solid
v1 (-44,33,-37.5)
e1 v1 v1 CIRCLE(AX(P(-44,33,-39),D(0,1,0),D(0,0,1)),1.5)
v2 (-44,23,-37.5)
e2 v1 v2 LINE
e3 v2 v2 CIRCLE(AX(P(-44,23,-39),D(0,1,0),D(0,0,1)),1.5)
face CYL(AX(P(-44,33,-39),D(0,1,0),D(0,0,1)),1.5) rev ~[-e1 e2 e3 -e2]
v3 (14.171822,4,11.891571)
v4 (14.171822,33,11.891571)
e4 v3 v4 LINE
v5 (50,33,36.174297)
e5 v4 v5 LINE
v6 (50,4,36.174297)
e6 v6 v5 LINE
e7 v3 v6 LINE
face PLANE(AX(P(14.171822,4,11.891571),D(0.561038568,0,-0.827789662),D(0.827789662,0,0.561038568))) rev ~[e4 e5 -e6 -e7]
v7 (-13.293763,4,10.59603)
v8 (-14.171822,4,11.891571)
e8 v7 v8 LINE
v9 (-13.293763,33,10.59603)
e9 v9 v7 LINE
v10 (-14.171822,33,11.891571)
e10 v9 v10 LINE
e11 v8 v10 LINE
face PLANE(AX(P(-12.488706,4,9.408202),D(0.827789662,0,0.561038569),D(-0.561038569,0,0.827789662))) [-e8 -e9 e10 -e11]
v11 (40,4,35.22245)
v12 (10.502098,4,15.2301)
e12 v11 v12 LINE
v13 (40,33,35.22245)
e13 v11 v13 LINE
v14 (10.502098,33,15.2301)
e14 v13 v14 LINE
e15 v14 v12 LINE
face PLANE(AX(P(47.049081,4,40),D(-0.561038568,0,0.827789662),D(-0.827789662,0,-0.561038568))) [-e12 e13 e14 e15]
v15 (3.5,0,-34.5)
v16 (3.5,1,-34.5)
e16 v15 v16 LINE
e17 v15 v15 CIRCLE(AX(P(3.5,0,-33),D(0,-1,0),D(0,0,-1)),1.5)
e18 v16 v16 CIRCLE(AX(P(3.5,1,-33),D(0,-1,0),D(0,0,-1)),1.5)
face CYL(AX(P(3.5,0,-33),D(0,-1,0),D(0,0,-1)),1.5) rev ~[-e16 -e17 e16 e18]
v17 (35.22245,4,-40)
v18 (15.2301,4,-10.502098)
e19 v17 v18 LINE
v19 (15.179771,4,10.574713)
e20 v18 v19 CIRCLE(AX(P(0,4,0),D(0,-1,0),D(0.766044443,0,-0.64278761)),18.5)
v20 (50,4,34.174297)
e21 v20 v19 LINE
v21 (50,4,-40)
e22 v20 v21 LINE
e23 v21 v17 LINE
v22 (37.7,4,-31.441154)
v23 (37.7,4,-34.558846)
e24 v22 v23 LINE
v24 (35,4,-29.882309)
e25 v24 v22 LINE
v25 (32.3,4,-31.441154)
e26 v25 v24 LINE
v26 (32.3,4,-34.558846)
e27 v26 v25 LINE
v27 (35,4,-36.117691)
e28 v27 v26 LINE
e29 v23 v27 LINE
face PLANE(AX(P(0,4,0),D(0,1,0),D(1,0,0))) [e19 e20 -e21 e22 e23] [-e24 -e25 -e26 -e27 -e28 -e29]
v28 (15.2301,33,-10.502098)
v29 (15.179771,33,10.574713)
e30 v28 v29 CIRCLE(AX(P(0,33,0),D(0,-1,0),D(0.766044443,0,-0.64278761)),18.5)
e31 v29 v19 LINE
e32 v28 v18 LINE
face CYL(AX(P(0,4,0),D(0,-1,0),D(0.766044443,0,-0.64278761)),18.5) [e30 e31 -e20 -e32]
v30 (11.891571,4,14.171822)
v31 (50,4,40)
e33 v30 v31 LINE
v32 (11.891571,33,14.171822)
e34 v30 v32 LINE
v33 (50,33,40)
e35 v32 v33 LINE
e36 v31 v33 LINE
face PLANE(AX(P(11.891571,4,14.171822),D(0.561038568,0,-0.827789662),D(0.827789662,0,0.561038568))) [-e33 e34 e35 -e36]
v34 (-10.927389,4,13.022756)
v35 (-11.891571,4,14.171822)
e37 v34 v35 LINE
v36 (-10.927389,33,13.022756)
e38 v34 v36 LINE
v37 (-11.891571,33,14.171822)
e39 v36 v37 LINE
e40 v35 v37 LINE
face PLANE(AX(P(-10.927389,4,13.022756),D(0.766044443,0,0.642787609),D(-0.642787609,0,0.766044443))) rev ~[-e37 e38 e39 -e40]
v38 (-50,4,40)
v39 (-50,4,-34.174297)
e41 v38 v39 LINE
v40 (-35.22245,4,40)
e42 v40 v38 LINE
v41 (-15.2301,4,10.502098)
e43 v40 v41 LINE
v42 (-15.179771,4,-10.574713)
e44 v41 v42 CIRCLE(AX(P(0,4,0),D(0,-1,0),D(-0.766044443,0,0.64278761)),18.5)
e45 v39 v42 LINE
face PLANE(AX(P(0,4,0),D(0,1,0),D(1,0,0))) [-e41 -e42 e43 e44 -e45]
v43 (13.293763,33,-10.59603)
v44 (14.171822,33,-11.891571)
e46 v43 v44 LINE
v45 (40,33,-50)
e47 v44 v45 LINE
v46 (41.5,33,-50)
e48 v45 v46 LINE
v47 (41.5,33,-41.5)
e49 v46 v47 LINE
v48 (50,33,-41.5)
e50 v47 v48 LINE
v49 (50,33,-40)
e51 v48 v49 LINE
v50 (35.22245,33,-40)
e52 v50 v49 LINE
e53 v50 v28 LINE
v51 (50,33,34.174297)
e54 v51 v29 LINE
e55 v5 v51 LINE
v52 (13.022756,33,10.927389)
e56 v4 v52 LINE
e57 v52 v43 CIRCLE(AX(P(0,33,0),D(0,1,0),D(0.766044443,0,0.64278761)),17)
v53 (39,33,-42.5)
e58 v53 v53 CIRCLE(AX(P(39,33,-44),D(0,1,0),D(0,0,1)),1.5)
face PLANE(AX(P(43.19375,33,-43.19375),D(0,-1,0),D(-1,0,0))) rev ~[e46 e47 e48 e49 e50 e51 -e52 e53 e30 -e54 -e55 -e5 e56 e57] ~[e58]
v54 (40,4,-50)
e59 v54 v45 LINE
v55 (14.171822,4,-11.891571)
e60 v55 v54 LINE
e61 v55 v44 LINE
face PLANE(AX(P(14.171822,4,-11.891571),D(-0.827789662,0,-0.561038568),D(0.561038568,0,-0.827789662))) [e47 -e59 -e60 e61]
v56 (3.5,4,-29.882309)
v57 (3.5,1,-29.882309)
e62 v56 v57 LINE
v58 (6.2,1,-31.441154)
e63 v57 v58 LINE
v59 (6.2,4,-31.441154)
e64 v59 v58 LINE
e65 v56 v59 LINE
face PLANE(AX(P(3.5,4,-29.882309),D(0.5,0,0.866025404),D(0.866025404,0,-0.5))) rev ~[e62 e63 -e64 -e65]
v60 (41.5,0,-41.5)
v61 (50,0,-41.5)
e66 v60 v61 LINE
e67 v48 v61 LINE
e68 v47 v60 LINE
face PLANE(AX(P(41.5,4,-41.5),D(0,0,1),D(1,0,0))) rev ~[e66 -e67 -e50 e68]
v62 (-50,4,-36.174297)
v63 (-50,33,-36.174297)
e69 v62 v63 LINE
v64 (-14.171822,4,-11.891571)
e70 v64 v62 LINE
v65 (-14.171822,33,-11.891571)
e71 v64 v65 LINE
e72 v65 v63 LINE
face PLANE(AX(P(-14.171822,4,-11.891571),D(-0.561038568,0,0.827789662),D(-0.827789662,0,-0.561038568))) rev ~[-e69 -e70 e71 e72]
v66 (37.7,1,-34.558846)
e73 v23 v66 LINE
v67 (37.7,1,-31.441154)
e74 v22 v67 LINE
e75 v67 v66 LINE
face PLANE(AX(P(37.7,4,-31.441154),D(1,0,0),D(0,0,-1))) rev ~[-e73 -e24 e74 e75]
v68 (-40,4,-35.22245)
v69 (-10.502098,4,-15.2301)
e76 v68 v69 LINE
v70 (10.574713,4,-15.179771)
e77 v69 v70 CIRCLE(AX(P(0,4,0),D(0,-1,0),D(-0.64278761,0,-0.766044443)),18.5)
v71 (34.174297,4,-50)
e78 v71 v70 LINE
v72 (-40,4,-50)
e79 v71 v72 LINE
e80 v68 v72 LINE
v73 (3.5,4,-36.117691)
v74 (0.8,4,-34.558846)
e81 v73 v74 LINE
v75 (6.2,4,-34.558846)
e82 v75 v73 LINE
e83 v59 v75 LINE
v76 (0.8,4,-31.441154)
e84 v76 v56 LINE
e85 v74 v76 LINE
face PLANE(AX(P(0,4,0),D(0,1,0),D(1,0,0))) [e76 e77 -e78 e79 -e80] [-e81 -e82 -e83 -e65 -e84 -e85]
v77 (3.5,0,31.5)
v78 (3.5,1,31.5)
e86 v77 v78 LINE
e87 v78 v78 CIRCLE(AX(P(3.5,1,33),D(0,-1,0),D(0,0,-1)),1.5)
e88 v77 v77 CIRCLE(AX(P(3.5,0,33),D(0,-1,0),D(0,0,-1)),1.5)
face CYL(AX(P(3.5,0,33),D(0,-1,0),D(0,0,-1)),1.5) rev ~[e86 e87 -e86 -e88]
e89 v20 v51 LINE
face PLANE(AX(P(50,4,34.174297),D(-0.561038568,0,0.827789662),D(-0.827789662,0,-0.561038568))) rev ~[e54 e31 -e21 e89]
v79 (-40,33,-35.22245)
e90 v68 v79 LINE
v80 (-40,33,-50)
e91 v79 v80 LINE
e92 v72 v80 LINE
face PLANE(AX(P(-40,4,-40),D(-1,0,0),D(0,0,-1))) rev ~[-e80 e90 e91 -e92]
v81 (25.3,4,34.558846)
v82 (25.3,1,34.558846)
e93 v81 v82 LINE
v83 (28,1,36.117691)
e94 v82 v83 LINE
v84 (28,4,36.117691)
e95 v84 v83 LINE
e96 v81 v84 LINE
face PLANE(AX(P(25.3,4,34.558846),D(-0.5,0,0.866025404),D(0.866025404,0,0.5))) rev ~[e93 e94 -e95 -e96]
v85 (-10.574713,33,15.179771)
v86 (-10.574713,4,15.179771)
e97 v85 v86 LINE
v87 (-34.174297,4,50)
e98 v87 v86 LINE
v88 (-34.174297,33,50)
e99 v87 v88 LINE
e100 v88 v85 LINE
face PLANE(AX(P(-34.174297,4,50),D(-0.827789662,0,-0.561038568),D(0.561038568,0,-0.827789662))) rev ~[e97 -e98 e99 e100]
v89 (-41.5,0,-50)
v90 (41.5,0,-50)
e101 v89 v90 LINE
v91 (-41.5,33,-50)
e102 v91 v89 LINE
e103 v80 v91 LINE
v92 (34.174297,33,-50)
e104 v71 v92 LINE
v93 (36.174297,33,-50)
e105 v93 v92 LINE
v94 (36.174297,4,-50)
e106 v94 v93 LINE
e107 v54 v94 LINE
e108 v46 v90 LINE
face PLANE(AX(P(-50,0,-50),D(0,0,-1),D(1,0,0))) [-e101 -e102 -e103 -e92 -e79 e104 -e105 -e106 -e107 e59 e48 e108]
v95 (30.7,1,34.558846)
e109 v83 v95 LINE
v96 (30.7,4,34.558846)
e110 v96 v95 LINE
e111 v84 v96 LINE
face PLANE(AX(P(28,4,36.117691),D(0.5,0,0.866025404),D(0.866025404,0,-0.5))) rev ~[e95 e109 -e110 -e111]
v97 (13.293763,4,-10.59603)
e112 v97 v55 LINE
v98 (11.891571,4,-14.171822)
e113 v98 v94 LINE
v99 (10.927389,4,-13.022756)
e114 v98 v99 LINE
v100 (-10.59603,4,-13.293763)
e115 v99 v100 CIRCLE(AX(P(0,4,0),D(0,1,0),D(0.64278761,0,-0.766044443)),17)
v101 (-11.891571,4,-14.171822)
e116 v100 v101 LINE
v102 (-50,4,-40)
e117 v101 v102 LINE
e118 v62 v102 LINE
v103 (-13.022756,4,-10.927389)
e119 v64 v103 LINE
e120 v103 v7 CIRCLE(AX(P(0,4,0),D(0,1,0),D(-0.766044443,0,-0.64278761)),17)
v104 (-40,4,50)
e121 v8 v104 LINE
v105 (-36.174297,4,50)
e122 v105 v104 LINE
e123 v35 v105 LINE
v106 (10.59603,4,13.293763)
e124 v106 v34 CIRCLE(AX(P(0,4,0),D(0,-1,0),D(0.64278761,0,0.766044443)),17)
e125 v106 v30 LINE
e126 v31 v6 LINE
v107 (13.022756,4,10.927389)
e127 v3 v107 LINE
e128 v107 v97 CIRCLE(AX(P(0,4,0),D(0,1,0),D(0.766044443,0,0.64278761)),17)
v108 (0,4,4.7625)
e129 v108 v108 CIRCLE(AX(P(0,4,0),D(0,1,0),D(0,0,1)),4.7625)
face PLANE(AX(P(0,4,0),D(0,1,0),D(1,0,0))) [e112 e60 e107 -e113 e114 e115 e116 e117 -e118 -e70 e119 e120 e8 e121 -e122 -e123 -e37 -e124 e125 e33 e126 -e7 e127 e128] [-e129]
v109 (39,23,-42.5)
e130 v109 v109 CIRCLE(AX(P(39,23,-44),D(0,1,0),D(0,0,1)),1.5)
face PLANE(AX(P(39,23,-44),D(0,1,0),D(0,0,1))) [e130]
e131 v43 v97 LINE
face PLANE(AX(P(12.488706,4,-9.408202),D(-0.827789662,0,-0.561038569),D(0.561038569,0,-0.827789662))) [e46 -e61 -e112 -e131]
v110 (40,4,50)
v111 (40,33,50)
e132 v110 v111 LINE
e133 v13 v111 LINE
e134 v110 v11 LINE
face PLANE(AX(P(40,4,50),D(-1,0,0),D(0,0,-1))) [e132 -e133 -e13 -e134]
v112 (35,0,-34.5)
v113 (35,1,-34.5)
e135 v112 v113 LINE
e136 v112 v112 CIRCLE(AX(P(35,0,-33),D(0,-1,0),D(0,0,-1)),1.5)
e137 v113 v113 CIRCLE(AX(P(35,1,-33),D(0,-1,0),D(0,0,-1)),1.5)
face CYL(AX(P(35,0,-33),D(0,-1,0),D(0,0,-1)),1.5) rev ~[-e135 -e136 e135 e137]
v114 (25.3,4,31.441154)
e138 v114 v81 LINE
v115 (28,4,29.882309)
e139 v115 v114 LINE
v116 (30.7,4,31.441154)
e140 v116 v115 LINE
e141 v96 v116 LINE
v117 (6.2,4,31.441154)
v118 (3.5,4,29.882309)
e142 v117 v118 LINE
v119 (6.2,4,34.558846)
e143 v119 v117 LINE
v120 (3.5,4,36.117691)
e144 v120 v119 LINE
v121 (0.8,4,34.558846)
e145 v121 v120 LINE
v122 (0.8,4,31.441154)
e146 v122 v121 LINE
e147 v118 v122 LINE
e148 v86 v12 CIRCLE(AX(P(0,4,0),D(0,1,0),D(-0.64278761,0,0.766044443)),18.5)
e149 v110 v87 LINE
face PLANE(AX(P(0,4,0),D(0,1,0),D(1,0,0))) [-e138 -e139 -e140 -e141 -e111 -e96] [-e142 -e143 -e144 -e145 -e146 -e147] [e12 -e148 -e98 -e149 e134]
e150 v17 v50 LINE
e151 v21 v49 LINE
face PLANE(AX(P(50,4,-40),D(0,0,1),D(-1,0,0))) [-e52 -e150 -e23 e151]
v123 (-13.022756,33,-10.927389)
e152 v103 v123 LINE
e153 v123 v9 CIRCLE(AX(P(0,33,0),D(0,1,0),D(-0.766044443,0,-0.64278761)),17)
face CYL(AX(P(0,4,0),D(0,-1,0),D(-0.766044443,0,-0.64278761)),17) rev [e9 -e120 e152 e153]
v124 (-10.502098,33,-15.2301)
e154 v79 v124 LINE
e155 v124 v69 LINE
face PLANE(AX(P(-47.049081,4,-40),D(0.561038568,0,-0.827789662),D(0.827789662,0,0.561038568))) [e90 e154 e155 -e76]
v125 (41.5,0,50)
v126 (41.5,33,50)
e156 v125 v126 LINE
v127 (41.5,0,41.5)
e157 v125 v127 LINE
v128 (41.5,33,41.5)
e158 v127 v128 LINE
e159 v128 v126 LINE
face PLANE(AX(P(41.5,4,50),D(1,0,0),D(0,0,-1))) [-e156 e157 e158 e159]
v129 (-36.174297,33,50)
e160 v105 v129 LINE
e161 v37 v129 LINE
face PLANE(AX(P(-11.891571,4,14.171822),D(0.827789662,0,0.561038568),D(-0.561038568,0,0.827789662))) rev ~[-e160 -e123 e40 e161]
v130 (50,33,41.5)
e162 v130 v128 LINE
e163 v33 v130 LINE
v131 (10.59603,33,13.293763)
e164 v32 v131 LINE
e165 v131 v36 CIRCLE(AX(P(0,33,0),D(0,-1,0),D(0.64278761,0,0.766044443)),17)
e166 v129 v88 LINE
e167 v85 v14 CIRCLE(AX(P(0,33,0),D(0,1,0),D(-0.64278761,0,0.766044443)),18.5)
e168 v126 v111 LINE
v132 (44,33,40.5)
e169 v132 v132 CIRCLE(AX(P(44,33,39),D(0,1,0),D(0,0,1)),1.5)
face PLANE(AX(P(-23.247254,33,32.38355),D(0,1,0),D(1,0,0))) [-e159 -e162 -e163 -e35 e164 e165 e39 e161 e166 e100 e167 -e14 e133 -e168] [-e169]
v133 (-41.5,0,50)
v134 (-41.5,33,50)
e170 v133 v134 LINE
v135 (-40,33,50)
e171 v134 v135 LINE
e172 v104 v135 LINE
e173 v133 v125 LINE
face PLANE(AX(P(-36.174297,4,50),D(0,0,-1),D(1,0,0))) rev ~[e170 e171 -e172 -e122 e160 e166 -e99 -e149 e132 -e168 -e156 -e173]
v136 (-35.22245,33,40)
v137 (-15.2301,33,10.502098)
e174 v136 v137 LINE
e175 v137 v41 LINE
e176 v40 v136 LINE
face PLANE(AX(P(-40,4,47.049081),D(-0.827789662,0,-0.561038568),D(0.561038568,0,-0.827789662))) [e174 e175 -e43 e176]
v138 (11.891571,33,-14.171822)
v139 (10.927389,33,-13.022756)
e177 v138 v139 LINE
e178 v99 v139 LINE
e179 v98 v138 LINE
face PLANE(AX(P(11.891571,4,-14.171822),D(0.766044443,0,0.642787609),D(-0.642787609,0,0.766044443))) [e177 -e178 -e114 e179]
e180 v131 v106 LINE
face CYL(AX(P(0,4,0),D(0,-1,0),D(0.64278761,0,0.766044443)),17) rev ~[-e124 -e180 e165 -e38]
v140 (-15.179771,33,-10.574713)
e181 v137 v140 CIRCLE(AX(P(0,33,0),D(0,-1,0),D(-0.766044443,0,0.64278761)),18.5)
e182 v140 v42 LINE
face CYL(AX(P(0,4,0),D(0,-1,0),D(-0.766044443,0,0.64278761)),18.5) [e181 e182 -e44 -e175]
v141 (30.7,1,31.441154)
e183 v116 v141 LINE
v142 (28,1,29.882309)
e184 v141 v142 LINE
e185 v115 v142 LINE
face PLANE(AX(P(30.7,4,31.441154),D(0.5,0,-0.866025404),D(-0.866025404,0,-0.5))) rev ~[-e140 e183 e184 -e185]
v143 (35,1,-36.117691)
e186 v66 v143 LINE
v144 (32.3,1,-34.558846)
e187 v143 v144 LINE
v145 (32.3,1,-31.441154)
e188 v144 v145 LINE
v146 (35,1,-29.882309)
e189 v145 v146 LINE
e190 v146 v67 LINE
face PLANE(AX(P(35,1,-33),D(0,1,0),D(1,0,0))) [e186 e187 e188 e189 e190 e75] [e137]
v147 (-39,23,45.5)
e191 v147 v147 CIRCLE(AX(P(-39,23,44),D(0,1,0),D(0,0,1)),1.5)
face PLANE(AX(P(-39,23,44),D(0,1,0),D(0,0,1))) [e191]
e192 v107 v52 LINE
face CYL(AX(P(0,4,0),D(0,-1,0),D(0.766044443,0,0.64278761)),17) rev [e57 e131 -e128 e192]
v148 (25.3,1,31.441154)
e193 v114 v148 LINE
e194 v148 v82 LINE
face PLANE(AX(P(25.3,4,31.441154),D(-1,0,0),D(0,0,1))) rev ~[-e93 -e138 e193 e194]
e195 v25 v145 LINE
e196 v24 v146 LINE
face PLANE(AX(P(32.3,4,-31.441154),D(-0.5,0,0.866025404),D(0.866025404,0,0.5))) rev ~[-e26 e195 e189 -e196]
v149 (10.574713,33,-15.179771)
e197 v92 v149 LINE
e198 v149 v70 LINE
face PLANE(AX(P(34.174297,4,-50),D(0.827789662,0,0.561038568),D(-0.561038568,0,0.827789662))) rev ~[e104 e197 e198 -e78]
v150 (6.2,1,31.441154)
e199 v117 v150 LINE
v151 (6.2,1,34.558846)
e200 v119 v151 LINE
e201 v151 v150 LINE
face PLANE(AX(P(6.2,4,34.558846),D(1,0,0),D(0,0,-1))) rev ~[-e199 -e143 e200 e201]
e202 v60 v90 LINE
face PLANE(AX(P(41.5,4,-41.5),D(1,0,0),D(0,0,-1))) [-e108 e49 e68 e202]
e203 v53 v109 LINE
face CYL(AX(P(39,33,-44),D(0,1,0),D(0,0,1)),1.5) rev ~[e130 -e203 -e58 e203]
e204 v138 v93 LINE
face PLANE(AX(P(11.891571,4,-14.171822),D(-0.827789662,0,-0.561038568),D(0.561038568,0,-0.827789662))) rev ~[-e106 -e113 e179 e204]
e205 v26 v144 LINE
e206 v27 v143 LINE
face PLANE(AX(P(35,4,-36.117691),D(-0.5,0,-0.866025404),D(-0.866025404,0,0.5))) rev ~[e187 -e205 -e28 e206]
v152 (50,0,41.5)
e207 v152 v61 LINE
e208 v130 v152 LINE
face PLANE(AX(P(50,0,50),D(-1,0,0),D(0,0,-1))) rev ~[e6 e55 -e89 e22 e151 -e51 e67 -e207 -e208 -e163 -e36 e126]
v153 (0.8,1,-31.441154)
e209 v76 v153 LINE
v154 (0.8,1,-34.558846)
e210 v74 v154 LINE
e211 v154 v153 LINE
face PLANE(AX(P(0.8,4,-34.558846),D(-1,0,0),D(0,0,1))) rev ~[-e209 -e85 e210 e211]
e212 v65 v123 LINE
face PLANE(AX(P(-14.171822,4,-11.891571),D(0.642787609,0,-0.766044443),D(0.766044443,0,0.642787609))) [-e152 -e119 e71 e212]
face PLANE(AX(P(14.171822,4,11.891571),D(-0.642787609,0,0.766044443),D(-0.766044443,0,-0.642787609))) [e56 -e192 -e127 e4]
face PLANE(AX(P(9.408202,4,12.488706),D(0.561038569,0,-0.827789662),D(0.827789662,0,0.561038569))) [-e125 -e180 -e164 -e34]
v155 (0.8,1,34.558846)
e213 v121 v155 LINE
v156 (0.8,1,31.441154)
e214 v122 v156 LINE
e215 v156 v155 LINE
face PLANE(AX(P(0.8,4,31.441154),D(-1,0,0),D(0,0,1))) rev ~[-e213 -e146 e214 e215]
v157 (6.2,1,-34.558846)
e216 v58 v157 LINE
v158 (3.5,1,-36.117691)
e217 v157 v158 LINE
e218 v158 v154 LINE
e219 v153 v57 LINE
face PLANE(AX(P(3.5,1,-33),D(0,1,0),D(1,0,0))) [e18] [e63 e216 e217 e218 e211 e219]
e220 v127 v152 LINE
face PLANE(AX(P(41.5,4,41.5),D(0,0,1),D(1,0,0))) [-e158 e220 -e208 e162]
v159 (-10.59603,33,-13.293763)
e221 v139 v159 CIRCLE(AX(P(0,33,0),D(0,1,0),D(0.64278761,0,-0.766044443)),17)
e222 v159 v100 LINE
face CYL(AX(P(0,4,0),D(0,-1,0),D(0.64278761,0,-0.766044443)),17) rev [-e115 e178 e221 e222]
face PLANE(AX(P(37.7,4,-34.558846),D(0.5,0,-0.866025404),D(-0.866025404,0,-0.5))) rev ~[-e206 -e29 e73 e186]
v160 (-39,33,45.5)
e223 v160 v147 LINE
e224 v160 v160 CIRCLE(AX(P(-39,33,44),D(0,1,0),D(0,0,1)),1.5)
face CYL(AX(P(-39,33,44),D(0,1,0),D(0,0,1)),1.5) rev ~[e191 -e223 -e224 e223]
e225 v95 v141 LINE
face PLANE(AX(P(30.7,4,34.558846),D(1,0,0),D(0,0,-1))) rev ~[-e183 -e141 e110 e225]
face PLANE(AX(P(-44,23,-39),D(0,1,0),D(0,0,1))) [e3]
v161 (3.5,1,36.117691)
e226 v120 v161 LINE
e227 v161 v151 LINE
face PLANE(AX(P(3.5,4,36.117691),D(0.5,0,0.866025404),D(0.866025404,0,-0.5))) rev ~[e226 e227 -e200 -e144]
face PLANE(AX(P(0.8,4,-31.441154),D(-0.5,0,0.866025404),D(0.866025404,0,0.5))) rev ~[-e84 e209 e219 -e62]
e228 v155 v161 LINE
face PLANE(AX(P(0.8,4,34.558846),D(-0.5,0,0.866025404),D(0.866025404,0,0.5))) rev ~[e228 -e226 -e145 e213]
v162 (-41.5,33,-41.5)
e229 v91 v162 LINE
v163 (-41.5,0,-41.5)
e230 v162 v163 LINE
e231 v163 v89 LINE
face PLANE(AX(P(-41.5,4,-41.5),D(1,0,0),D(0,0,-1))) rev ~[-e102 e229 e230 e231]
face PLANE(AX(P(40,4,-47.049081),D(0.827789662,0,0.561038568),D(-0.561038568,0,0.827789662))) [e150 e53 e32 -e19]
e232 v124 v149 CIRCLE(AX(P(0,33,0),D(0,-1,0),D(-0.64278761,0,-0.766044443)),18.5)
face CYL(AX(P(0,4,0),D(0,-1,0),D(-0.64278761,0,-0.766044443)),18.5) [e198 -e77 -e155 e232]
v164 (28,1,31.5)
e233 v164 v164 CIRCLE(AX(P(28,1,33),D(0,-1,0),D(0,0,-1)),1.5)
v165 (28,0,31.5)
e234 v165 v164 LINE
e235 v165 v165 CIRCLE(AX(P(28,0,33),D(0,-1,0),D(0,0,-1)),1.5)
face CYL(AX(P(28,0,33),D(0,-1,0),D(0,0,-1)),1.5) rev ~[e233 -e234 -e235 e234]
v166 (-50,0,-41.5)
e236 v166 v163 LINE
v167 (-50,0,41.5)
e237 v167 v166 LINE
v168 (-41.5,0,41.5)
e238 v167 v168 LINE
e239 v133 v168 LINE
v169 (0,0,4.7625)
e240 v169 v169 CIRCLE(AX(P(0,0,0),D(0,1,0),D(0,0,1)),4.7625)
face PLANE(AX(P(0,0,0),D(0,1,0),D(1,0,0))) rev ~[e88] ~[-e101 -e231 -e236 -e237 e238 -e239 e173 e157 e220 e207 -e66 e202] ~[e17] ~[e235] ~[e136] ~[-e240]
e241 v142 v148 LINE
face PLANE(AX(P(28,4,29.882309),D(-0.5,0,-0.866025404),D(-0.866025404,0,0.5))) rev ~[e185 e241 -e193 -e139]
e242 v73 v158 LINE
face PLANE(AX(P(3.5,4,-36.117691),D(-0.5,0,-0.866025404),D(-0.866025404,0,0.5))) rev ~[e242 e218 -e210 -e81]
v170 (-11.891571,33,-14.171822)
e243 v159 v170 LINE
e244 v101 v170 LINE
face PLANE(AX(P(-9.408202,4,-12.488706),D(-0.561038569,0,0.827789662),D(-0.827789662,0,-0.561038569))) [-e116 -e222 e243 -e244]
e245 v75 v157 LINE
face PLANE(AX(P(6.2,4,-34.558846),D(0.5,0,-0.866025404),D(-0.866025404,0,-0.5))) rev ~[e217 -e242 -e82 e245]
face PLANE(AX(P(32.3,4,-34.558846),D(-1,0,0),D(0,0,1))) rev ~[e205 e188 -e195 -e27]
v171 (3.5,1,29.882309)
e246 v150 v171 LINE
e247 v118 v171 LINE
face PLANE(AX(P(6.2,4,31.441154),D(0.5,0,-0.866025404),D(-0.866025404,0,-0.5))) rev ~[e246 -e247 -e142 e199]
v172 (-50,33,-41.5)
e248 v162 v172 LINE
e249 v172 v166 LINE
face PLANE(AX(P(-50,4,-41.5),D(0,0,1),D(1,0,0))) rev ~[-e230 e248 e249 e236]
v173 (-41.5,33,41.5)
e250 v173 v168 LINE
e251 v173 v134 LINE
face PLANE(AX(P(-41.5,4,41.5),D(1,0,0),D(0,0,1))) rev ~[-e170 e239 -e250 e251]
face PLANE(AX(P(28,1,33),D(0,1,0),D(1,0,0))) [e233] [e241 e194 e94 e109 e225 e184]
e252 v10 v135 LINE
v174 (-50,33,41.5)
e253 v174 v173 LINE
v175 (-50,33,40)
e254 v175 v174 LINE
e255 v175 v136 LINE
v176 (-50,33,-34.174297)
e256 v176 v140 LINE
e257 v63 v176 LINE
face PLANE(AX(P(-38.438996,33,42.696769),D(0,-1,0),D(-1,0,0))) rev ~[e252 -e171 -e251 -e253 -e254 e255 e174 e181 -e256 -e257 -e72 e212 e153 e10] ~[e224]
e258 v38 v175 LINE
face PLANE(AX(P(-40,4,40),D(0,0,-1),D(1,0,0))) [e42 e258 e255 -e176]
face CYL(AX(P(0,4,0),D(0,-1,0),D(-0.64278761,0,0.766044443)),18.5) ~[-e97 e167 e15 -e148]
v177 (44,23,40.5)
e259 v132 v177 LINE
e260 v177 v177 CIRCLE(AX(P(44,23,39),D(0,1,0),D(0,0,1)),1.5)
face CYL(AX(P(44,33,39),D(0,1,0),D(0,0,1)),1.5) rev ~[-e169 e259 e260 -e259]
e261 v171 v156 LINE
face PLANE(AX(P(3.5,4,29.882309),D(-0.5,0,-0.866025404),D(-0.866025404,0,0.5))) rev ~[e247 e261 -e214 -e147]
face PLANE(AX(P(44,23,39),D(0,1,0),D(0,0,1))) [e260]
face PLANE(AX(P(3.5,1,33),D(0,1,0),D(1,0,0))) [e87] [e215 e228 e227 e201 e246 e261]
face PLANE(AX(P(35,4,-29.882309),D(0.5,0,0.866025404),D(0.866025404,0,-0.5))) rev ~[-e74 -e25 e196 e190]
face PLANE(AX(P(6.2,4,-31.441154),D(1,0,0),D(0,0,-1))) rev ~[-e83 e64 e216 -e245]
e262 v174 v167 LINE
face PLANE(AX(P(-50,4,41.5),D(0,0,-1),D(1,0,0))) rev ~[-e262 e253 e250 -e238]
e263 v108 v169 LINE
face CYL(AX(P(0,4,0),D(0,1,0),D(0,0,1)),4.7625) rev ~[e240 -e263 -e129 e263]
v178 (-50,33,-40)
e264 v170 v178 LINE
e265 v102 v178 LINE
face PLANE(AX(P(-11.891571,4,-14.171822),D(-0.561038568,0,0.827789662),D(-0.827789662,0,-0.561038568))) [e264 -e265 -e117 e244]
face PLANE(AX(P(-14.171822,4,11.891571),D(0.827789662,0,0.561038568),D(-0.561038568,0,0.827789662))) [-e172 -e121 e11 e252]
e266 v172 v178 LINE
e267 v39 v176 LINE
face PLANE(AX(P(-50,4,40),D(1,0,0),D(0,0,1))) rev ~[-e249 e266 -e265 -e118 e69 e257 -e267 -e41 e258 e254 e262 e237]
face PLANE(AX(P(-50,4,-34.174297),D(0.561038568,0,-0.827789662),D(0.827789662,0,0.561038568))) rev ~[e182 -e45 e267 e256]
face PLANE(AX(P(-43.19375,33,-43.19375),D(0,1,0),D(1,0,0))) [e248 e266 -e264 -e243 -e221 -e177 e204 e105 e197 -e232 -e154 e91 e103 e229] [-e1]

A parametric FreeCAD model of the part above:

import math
import FreeCAD as App
import Part
import Sketcher
from FreeCAD import Vector
Q = App.Units.Quantity


def add_polygon(sketch, points):
    """Adds a closed chain of lines whose ends are joined by coincident constraints."""
    first, n = sketch.GeometryCount, len(points)
    for a, b in zip(points, points[1:] + points[:1]):
        sketch.addGeometry(Part.LineSegment(App.Vector(*a, 0), App.Vector(*b, 0)), False)
    for i in range(n):
        sketch.addConstraint(Sketcher.Constraint("Coincident", first + i, 2, first + (i + 1) % n, 1))

doc = App.newDocument("Part")
body = doc.addObject("PartDesign::Body", "Body")

sketch1 = body.newObject("Sketcher::SketchObject", "Sketch")
sketch1.AttachmentSupport = (doc.getObject("XZ_Plane"), [""])
sketch1.MapMode = "FlatFace"
add_polygon(sketch1, [(-50, -50), (-50, 50), (50, 50), (50, -50)])
sketch1.addConstraint([
    Sketcher.Constraint("Vertical", 0),
    Sketcher.Constraint("Horizontal", 1),
    Sketcher.Constraint("Vertical", 2),
    Sketcher.Constraint("Horizontal", 3),
    Sketcher.Constraint("Symmetric", 0, 2, 2, 2, -1, 1),
    Sketcher.Constraint("Equal", 3, 0),
    Sketcher.Constraint("DistanceX", 1, 1, 1, 2, 100.0),
])
pad1 = body.newObject("PartDesign::Pad", "Pad")
pad1.Profile = sketch1
pad1.Length = 4
pad1.Reversed = True

sketch2 = body.newObject("Sketcher::SketchObject", "Sketch001")
sketch2.AttachmentSupport = (doc.getObject("XZ_Plane"), [""])
sketch2.MapMode = "FlatFace"
sketch2.AttachmentOffset = App.Placement(Vector(0, 0, -4), App.Rotation())
sketch2.addGeometry(Part.Circle(Vector(0, 0, 0), Vector(0, 0, 1), 4.7625), False)
sketch2.addConstraint([
    Sketcher.Constraint("Coincident", 0, 3, -1, 1),
    Sketcher.Constraint("Diameter", 0, 9.525),
])
pocket1 = body.newObject("PartDesign::Pocket", "Pocket")
pocket1.Profile = sketch2
pocket1.Type = "ThroughAll"
pocket1.Reversed = True

sketch3 = body.newObject("Sketcher::SketchObject", "Sketch002")
sketch3.AttachmentSupport = (doc.getObject("XZ_Plane"), [""])
sketch3.MapMode = "FlatFace"
sketch3.AttachmentOffset = App.Placement(Vector(0, 0, -4), App.Rotation())
add_polygon(sketch3, [(-50, -50), (-50, -41.5), (-41.5, -41.5), (-41.5, -50)])
add_polygon(sketch3, [(41.5, -50), (41.5, -41.5), (50, -41.5), (50, -50)])
add_polygon(sketch3, [(41.5, 41.5), (41.5, 50), (50, 50), (50, 41.5)])
add_polygon(sketch3, [(-50, 41.5), (-50, 50), (-41.5, 50), (-41.5, 41.5)])
sketch3.addConstraint([
    Sketcher.Constraint("Vertical", 0),
    Sketcher.Constraint("Horizontal", 1),
    Sketcher.Constraint("Vertical", 2),
    Sketcher.Constraint("Horizontal", 3),
    Sketcher.Constraint("Vertical", 4),
    Sketcher.Constraint("Horizontal", 5),
    Sketcher.Constraint("Vertical", 6),
    Sketcher.Constraint("Horizontal", 7),
    Sketcher.Constraint("Vertical", 8),
    Sketcher.Constraint("Horizontal", 9),
    Sketcher.Constraint("Vertical", 10),
    Sketcher.Constraint("Horizontal", 11),
    Sketcher.Constraint("Vertical", 12),
    Sketcher.Constraint("Horizontal", 13),
    Sketcher.Constraint("Vertical", 14),
    Sketcher.Constraint("Horizontal", 15),
    Sketcher.Constraint("Symmetric", 2, 2, 8, 2, -1, 1),
    Sketcher.Constraint("Symmetric", 0, 2, 10, 2, -1, 1),
    Sketcher.Constraint("Symmetric", 6, 2, 12, 2, -1, 1),
    Sketcher.Constraint("Symmetric", 4, 2, 14, 2, -1, 1),
    Sketcher.Constraint("Symmetric", 1, 2, 4, 2, -2),
    Sketcher.Constraint("Symmetric", 3, 2, 6, 2, -2),
    Sketcher.Constraint("Equal", 15, 0),
    Sketcher.Constraint("DistanceX", 1, 1, 1, 2, 8.5),
    Sketcher.Constraint("DistanceX", 0, 2, -1, 1, 50.0),
    Sketcher.Constraint("DistanceY", 2, 2, -1, 1, 50.0),
])
pocket2 = body.newObject("PartDesign::Pocket", "Pocket001")
pocket2.Profile = sketch3
pocket2.Type = "ThroughAll"
pocket2.Reversed = True

sketch4 = body.newObject("Sketcher::SketchObject", "Sketch003")
sketch4.AttachmentSupport = (doc.getObject("XZ_Plane"), [""])
sketch4.MapMode = "FlatFace"
sketch4.AttachmentOffset = App.Placement(Vector(0, 0, -4), App.Rotation())
sketch4.addGeometry([
    Part.LineSegment(Vector(-10.927389, 13.022756, 0), Vector(-11.891571, 14.171822, 0)),
    Part.ArcOfCircle(Part.Circle(Vector(0, 0, 0), Vector(0, 0, 1), 18.5), math.radians(50), math.radians(130)),
    Part.LineSegment(Vector(11.891571, 14.171822, 0), Vector(10.927389, 13.022756, 0)),
    Part.ArcOfCircle(Part.Circle(Vector(0, 0, 0), Vector(0, 0, 1), 17), math.radians(50), math.radians(130)),
    Part.LineSegment(Vector(-14.171822, 11.891571, 0), Vector(-13.022756, 10.927389, 0)),
    Part.ArcOfCircle(Part.Circle(Vector(0, 0, 0), Vector(0, 0, 1), 17), math.radians(140), math.radians(220)),
    Part.LineSegment(Vector(-13.022756, -10.927389, 0), Vector(-14.171822, -11.891571, 0)),
    Part.ArcOfCircle(Part.Circle(Vector(0, 0, 0), Vector(0, 0, 1), 18.5), math.radians(140), math.radians(220)),
    Part.LineSegment(Vector(-11.891571, -14.171822, 0), Vector(-10.927389, -13.022756, 0)),
    Part.ArcOfCircle(Part.Circle(Vector(0, 0, 0), Vector(0, 0, 1), 17), math.radians(-130), math.radians(-50)),
    Part.LineSegment(Vector(10.927389, -13.022756, 0), Vector(11.891571, -14.171822, 0)),
    Part.ArcOfCircle(Part.Circle(Vector(0, 0, 0), Vector(0, 0, 1), 18.5), math.radians(-130), math.radians(-50)),
    Part.LineSegment(Vector(14.171822, -11.891571, 0), Vector(13.022756, -10.927389, 0)),
    Part.ArcOfCircle(Part.Circle(Vector(0, 0, 0), Vector(0, 0, 1), 17), math.radians(-40), math.radians(40)),
    Part.LineSegment(Vector(13.022756, 10.927389, 0), Vector(14.171822, 11.891571, 0)),
    Part.ArcOfCircle(Part.Circle(Vector(0, 0, 0), Vector(0, 0, 1), 18.5), math.radians(-40), math.radians(40)),
], False)
sketch4.addConstraint([
    Sketcher.Constraint("Coincident", 0, 2, 1, 2),
    Sketcher.Constraint("Coincident", 1, 1, 2, 1),
    Sketcher.Constraint("Coincident", 2, 2, 3, 1),
    Sketcher.Constraint("Coincident", 3, 2, 0, 1),
    Sketcher.Constraint("Coincident", 4, 2, 5, 1),
    Sketcher.Constraint("Coincident", 5, 2, 6, 1),
    Sketcher.Constraint("Coincident", 6, 2, 7, 2),
    Sketcher.Constraint("Coincident", 7, 1, 4, 1),
    Sketcher.Constraint("Coincident", 8, 2, 9, 1),
    Sketcher.Constraint("Coincident", 9, 2, 10, 1),
    Sketcher.Constraint("Coincident", 10, 2, 11, 2),
    Sketcher.Constraint("Coincident", 11, 1, 8, 1),
    Sketcher.Constraint("Coincident", 12, 2, 13, 1),
    Sketcher.Constraint("Coincident", 13, 2, 14, 1),
    Sketcher.Constraint("Coincident", 14, 2, 15, 2),
    Sketcher.Constraint("Coincident", 15, 1, 12, 1),
    Sketcher.Constraint("Coincident", 1, 3, -1, 1),
    Sketcher.Constraint("Coincident", 3, 3, -1, 1),
    Sketcher.Constraint("Coincident", 5, 3, -1, 1),
    Sketcher.Constraint("Coincident", 7, 3, -1, 1),
    Sketcher.Constraint("Coincident", 9, 3, -1, 1),
    Sketcher.Constraint("Coincident", 11, 3, -1, 1),
    Sketcher.Constraint("Coincident", 13, 3, -1, 1),
    Sketcher.Constraint("Coincident", 15, 3, -1, 1),
    Sketcher.Constraint("Equal", 3, 5),
    Sketcher.Constraint("Equal", 1, 7),
    Sketcher.Constraint("Equal", 5, 9),
    Sketcher.Constraint("Equal", 7, 11),
    Sketcher.Constraint("Equal", 9, 13),
    Sketcher.Constraint("Equal", 11, 15),
    Sketcher.Constraint("Perpendicular", 2, 4),
    Sketcher.Constraint("Perpendicular", 0, 6),
    Sketcher.Constraint("Perpendicular", 4, 8),
    Sketcher.Constraint("Perpendicular", 6, 10),
    Sketcher.Constraint("Perpendicular", 8, 12),
    Sketcher.Constraint("Perpendicular", 10, 14),
    Sketcher.Constraint("Horizontal", 0, 2, 1, 1),
    Sketcher.Constraint("Horizontal", 2, 2, 3, 2),
    Sketcher.Constraint("Horizontal", 8, 2, 9, 2),
    Sketcher.Constraint("Horizontal", 5, 2, 12, 2),
    Sketcher.Constraint("Horizontal", 4, 2, 13, 2),
    Sketcher.Constraint("Vertical", 4, 2, 5, 2),
    Sketcher.Constraint("Vertical", 3, 2, 8, 2),
    Sketcher.Constraint("Radius", 3, 17.0),
    Sketcher.Constraint("Radius", 1, 18.5),
    Sketcher.Constraint("Angle", 0, Q("130 deg")),
    Sketcher.Constraint("DistanceX", 0, 2, -1, 1, 11.891571),
    Sketcher.Constraint("DistanceY", -1, 1, 4, 2, 10.927389),
])
pad2 = body.newObject("PartDesign::Pad", "Pad001")
pad2.Profile = sketch4
pad2.Length = 29
pad2.Reversed = True

sketch5 = body.newObject("Sketcher::SketchObject", "Sketch004")
sketch5.AttachmentSupport = (doc.getObject("XZ_Plane"), [""])
sketch5.MapMode = "FlatFace"
sketch5.AttachmentOffset = App.Placement(Vector(0, 0, -4), App.Rotation())
add_polygon(sketch5, [(-41.5, 41.5), (-41.5, 50), (-40, 50), (-40, 40), (-50, 40), (-50, 41.5)])
add_polygon(sketch5, [(40, 40), (40, 50), (41.5, 50), (41.5, 41.5), (50, 41.5), (50, 40)])
add_polygon(sketch5, [(50, -40), (50, -41.5), (41.5, -41.5), (41.5, -50), (40, -50), (40, -40)])
add_polygon(sketch5, [(-50, -41.5), (-50, -40), (-40, -40), (-40, -50), (-41.5, -50), (-41.5, -41.5)])
sketch5.addConstraint([
    Sketcher.Constraint("Vertical", 0),
    Sketcher.Constraint("Horizontal", 1),
    Sketcher.Constraint("Vertical", 2),
    Sketcher.Constraint("Horizontal", 3),
    Sketcher.Constraint("Vertical", 4),
    Sketcher.Constraint("Horizontal", 5),
    Sketcher.Constraint("Vertical", 6),
    Sketcher.Constraint("Horizontal", 7),
    Sketcher.Constraint("Vertical", 8),
    Sketcher.Constraint("Horizontal", 9),
    Sketcher.Constraint("Vertical", 10),
    Sketcher.Constraint("Horizontal", 11),
    Sketcher.Constraint("Vertical", 12),
    Sketcher.Constraint("Horizontal", 13),
    Sketcher.Constraint("Vertical", 14),
    Sketcher.Constraint("Horizontal", 15),
    Sketcher.Constraint("Vertical", 16),
    Sketcher.Constraint("Horizontal", 17),
    Sketcher.Constraint("Vertical", 18),
    Sketcher.Constraint("Horizontal", 19),
    Sketcher.Constraint("Vertical", 20),
    Sketcher.Constraint("Horizontal", 21),
    Sketcher.Constraint("Vertical", 22),
    Sketcher.Constraint("Horizontal", 23),
    Sketcher.Constraint("Symmetric", 4, 2, 12, 2, -1, 1),
    Sketcher.Constraint("Symmetric", 0, 2, 14, 2, -1, 1),
    Sketcher.Constraint("Symmetric", 2, 2, 16, 2, -1, 1),
    Sketcher.Constraint("Symmetric", 10, 2, 18, 2, -1, 1),
    Sketcher.Constraint("Symmetric", 6, 2, 20, 2, -1, 1),
    Sketcher.Constraint("Symmetric", 8, 2, 22, 2, -1, 1),
    Sketcher.Constraint("Symmetric", 1, 2, 6, 2, -2),
    Sketcher.Constraint("Symmetric", 5, 2, 8, 2, -2),
    Sketcher.Constraint("Symmetric", 3, 2, 10, 2, -2),
    Sketcher.Constraint("Equal", 23, 0),
    Sketcher.Constraint("Equal", 19, 2),
    Sketcher.Constraint("DistanceX", 3, 2, 3, 1, 10.0),
    Sketcher.Constraint("DistanceX", 1, 1, 1, 2, 1.5),
    Sketcher.Constraint("DistanceY", -1, 1, 0, 2, 50.0),
    Sketcher.Constraint("DistanceX", 1, 2, -1, 1, 40.0),
])
pad3 = body.newObject("PartDesign::Pad", "Pad002")
pad3.Profile = sketch5
pad3.Length = 29
pad3.Reversed = True

sketch6 = body.newObject("Sketcher::SketchObject", "Sketch005")
sketch6.AttachmentSupport = (doc.getObject("XZ_Plane"), [""])
sketch6.MapMode = "FlatFace"
sketch6.AttachmentOffset = App.Placement(Vector(0, 0, -4), App.Rotation())
add_polygon(sketch6, [(-14.171822, 11.891571), (-40, 50), (-36.174297, 50), (-11.891571, 14.171822), (-9.867198, 11.184942), (-12.488706, 9.408202)])
add_polygon(sketch6, [(-11.891571, -14.171822), (-50, -40), (-50, -36.174297), (-14.171822, -11.891571), (-11.184942, -9.867198), (-9.408202, -12.488706)])
add_polygon(sketch6, [(14.171822, -11.891571), (40, -50), (36.174297, -50), (11.891571, -14.171822), (9.867198, -11.184942), (12.488706, -9.408202)])
add_polygon(sketch6, [(11.891571, 14.171822), (50, 40), (50, 36.174297), (14.171822, 11.891571), (11.184942, 9.867198), (9.408202, 12.488706)])
sketch6.addConstraint([
    Sketcher.Constraint("Horizontal", 1),
    Sketcher.Constraint("Vertical", 7),
    Sketcher.Constraint("Horizontal", 13),
    Sketcher.Constraint("Vertical", 19),
    Sketcher.Constraint("Symmetric", 0, 2, 12, 2, -1, 1),
    Sketcher.Constraint("Symmetric", 2, 2, 14, 2, -1, 1),
    Sketcher.Constraint("Symmetric", 3, 2, 15, 2, -1, 1),
    Sketcher.Constraint("Symmetric", 4, 2, 16, 2, -1, 1),
    Sketcher.Constraint("Symmetric", 5, 2, 17, 2, -1, 1),
    Sketcher.Constraint("Symmetric", 6, 2, 18, 2, -1, 1),
    Sketcher.Constraint("Symmetric", 8, 2, 20, 2, -1, 1),
    Sketcher.Constraint("Symmetric", 9, 2, 21, 2, -1, 1),
    Sketcher.Constraint("Symmetric", 10, 2, 22, 2, -1, 1),
    Sketcher.Constraint("Symmetric", 11, 2, 23, 2, -1, 1),
    Sketcher.Constraint("Symmetric", 11, 2, 14, 2, -2),
    Sketcher.Constraint("Symmetric", 8, 2, 17, 2, -2),
    Sketcher.Constraint("Parallel", 0, 2),
    Sketcher.Constraint("Parallel", 2, 3),
    Sketcher.Constraint("Perpendicular", 3, 4),
    Sketcher.Constraint("Perpendicular", 4, 5),
    Sketcher.Constraint("Perpendicular", 5, 6),
    Sketcher.Constraint("Parallel", 6, 8),
    Sketcher.Constraint("Parallel", 8, 9),
    Sketcher.Constraint("Perpendicular", 9, 10),
    Sketcher.Constraint("Perpendicular", 10, 11),
    Sketcher.Constraint("Parallel", 12, 14),
    Sketcher.Constraint("Parallel", 18, 20),
    Sketcher.Constraint("Equal", 13, 7),
    Sketcher.Constraint("Equal", 0, 6),
    Sketcher.Constraint("Equal", 3, 9),
    Sketcher.Constraint("Distance", 5, 3.0),
    Sketcher.Constraint("DistanceX", 0, 2, -1, 1, 40.0),
    Sketcher.Constraint("DistanceY", -1, 1, 0, 2, 50.0),
    Sketcher.Constraint("DistanceX", 6, 2, -1, 1, 50.0),
    Sketcher.Constraint("DistanceX", 3, 2, -1, 1, 9.867198),
    Sketcher.Constraint("DistanceY", -1, 1, 4, 2, 9.408202),
])
pocket3 = body.newObject("PartDesign::Pocket", "Pocket002")
pocket3.Profile = sketch6
pocket3.Type = "ThroughAll"

sketch7 = body.newObject("Sketcher::SketchObject", "Sketch006")
sketch7.AttachmentSupport = (doc.getObject("XZ_Plane"), [""])
sketch7.MapMode = "FlatFace"
sketch7.AttachmentOffset = App.Placement(Vector(0, 0, -4), App.Rotation())
add_polygon(sketch7, [(-11.891571, 14.171822), (-36.174297, 50), (-34.174297, 50), (-10.521099, 15.100666)])
add_polygon(sketch7, [(-40, 50), (-14.171822, 11.891571), (-13.610784, 11.063781), (-14.981255, 10.134937), (-40, 47.049081)])
add_polygon(sketch7, [(-50, -34.174297), (-15.100666, -10.521099), (-14.171822, -11.891571), (-50, -36.174297)])
add_polygon(sketch7, [(-50, -40), (-11.891571, -14.171822), (-11.063781, -13.610784), (-10.134937, -14.981255), (-47.049081, -40)])
add_polygon(sketch7, [(34.174297, -50), (10.521099, -15.100666), (11.891571, -14.171822), (36.174297, -50)])
add_polygon(sketch7, [(40, -50), (14.171822, -11.891571), (13.610784, -11.063781), (14.981255, -10.134937), (40, -47.049081)])
add_polygon(sketch7, [(50, 34.174297), (15.100666, 10.521099), (14.171822, 11.891571), (50, 36.174297)])
add_polygon(sketch7, [(50, 40), (11.891571, 14.171822), (11.063781, 13.610784), (10.134937, 14.981255), (47.049081, 40)])
sketch7.addConstraint([
    Sketcher.Constraint("Horizontal", 1),
    Sketcher.Constraint("Vertical", 8),
    Sketcher.Constraint("Vertical", 12),
    Sketcher.Constraint("Horizontal", 17),
    Sketcher.Constraint("Horizontal", 21),
    Sketcher.Constraint("Vertical", 26),
    Sketcher.Constraint("Vertical", 30),
    Sketcher.Constraint("Horizontal", 35),
    Sketcher.Constraint("Symmetric", 2, 2, 18, 2, -1, 1),
    Sketcher.Constraint("Symmetric", 3, 2, 19, 2, -1, 1),
    Sketcher.Constraint("Symmetric", 0, 2, 20, 2, -1, 1),
    Sketcher.Constraint("Symmetric", 4, 2, 22, 2, -1, 1),
    Sketcher.Constraint("Symmetric", 5, 2, 23, 2, -1, 1),
    Sketcher.Constraint("Symmetric", 6, 2, 24, 2, -1, 1),
    Sketcher.Constraint("Symmetric", 7, 2, 25, 2, -1, 1),
    Sketcher.Constraint("Symmetric", 9, 2, 27, 2, -1, 1),
    Sketcher.Constraint("Symmetric", 10, 2, 28, 2, -1, 1),
    Sketcher.Constraint("Symmetric", 11, 2, 29, 2, -1, 1),
    Sketcher.Constraint("Symmetric", 13, 2, 31, 2, -1, 1),
    Sketcher.Constraint("Symmetric", 14, 2, 32, 2, -1, 1),
    Sketcher.Constraint("Symmetric", 15, 2, 33, 2, -1, 1),
    Sketcher.Constraint("Symmetric", 16, 2, 34, 2, -1, 1),
    Sketcher.Constraint("Symmetric", 13, 2, 19, 2, -2),
    Sketcher.Constraint("Symmetric", 10, 2, 22, 2, -2),
    Sketcher.Constraint("Parallel", 0, 2),
    Sketcher.Constraint("Perpendicular", 2, 3),
    Sketcher.Constraint("Perpendicular", 3, 4),
    Sketcher.Constraint("Parallel", 4, 5),
    Sketcher.Constraint("Perpendicular", 5, 6),
    Sketcher.Constraint("Perpendicular", 6, 7),
    Sketcher.Constraint("Perpendicular", 7, 9),
    Sketcher.Constraint("Perpendicular", 9, 10),
    Sketcher.Constraint("Perpendicular", 10, 11),
    Sketcher.Constraint("Parallel", 11, 13),
    Sketcher.Constraint("Parallel", 13, 14),
    Sketcher.Constraint("Perpendicular", 14, 15),
    Sketcher.Constraint("Perpendicular", 15, 16),
    Sketcher.Constraint("Perpendicular", 16, 18),
    Sketcher.Constraint("Parallel", 20, 22),
    Sketcher.Constraint("Perpendicular", 25, 27),
    Sketcher.Constraint("Parallel", 29, 31),
    Sketcher.Constraint("Horizontal", 1, 2, 8, 2),
    Sketcher.Constraint("Vertical", 12, 2, 17, 2),
    Sketcher.Constraint("Equal", 35, 8),
    Sketcher.Constraint("Equal", 21, 12),
    Sketcher.Constraint("Equal", 3, 6),
    Sketcher.Constraint("Equal", 2, 9),
    Sketcher.Constraint("Equal", 4, 13),
    Sketcher.Constraint("Equal", 5, 14),
    Sketcher.Constraint("DistanceX", 1, 1, 1, 2, 2.0),
    Sketcher.Constraint("Distance", 5, 1.0),
    Sketcher.Constraint("DistanceY", -1, 1, 0, 2, 50.0),
    Sketcher.Constraint("DistanceX", 7, 2, -1, 1, 40.0),
    Sketcher.Constraint("DistanceX", 11, 2, -1, 1, 50.0),
    Sketcher.Constraint("DistanceX", 17, 2, 17, 1, 2.950919),
    Sketcher.Constraint("DistanceX", 2, 2, -1, 1, 10.521099),
])
pad4 = body.newObject("PartDesign::Pad", "Pad003")
pad4.Profile = sketch7
pad4.Length = 29
pad4.Reversed = True

sketch8 = body.newObject("Sketcher::SketchObject", "Sketch007")
sketch8.AttachmentSupport = (doc.getObject("XZ_Plane"), [""])
sketch8.MapMode = "FlatFace"
sketch8.AttachmentOffset = App.Placement(Vector(0, 0, -4), App.Rotation())
add_polygon(sketch8, [(-35.22245, 40), (-40, 40), (-40, 47.049081)])
add_polygon(sketch8, [(-40, -35.22245), (-40, -40), (-47.049081, -40)])
add_polygon(sketch8, [(35.22245, -40), (40, -40), (40, -47.049081)])
add_polygon(sketch8, [(40, 35.22245), (40, 40), (47.049081, 40)])
sketch8.addConstraint([
    Sketcher.Constraint("Horizontal", 0),
    Sketcher.Constraint("Vertical", 1),
    Sketcher.Constraint("Vertical", 3),
    Sketcher.Constraint("Horizontal", 4),
    Sketcher.Constraint("Horizontal", 6),
    Sketcher.Constraint("Vertical", 7),
    Sketcher.Constraint("Vertical", 9),
    Sketcher.Constraint("Horizontal", 10),
    Sketcher.Constraint("Symmetric", 0, 2, 6, 2, -1, 1),
    Sketcher.Constraint("Symmetric", 3, 2, 9, 2, -1, 1),
    Sketcher.Constraint("Symmetric", 3, 2, 6, 2, -2),
    Sketcher.Constraint("Perpendicular", 2, 5),
    Sketcher.Constraint("Perpendicular", 5, 8),
    Sketcher.Constraint("Perpendicular", 8, 11),
    Sketcher.Constraint("Equal", 0, 6),
    Sketcher.Constraint("Equal", 4, 10),
    Sketcher.Constraint("Equal", 10, 1),
    Sketcher.Constraint("DistanceX", 0, 2, -1, 1, 40.0),
    Sketcher.Constraint("DistanceY", -1, 1, 0, 2, 40.0),
    Sketcher.Constraint("DistanceX", 0, 2, 0, 1, 4.77755),
    Sketcher.Constraint("DistanceX", 4, 2, 4, 1, 7.049081),
])
pad5 = body.newObject("PartDesign::Pad", "Pad004")
pad5.Profile = sketch8
pad5.Length = 29
pad5.Reversed = True

sketch9 = body.newObject("Sketcher::SketchObject", "Sketch008")
sketch9.AttachmentSupport = (doc.getObject("XZ_Plane"), [""])
sketch9.MapMode = "FlatFace"
sketch9.addGeometry([
    Part.Circle(Vector(3.5, -33, 0), Vector(0, 0, 1), 1.5),
    Part.Circle(Vector(3.5, 33, 0), Vector(0, 0, 1), 1.5),
    Part.Circle(Vector(35, -33, 0), Vector(0, 0, 1), 1.5),
    Part.Circle(Vector(28, 33, 0), Vector(0, 0, 1), 1.5),
], False)
sketch9.addConstraint([
    Sketcher.Constraint("Equal", 0, 1),
    Sketcher.Constraint("Equal", 1, 2),
    Sketcher.Constraint("Equal", 2, 3),
    Sketcher.Constraint("Symmetric", 0, 3, 1, 3, -1),
    Sketcher.Constraint("Horizontal", 0, 3, 2, 3),
    Sketcher.Constraint("Horizontal", 1, 3, 3, 3),
    Sketcher.Constraint("Diameter", 0, 3.0),
    Sketcher.Constraint("DistanceY", 0, 3, -1, 1, 33.0),
    Sketcher.Constraint("DistanceX", -1, 1, 2, 3, 35.0),
    Sketcher.Constraint("DistanceX", -1, 1, 3, 3, 28.0),
    Sketcher.Constraint("DistanceX", -1, 1, 0, 3, 3.5),
])
pocket4 = body.newObject("PartDesign::Pocket", "Pocket003")
pocket4.Profile = sketch9
pocket4.Type = "ThroughAll"

sketch10 = body.newObject("Sketcher::SketchObject", "Sketch009")
sketch10.AttachmentSupport = (doc.getObject("XZ_Plane"), [""])
sketch10.MapMode = "FlatFace"
sketch10.AttachmentOffset = App.Placement(Vector(0, 0, -4), App.Rotation())
add_polygon(sketch10, [(28, 29.882309), (25.3, 31.441154), (25.3, 34.558846), (28, 36.117691), (30.7, 34.558846), (30.7, 31.441154)])
add_polygon(sketch10, [(3.5, 29.882309), (0.8, 31.441154), (0.8, 34.558846), (3.5, 36.117691), (6.2, 34.558846), (6.2, 31.441154)])
add_polygon(sketch10, [(3.5, -36.117691), (0.8, -34.558846), (0.8, -31.441154), (3.5, -29.882309), (6.2, -31.441154), (6.2, -34.558846)])
add_polygon(sketch10, [(35, -36.117691), (32.3, -34.558846), (32.3, -31.441154), (35, -29.882309), (37.7, -31.441154), (37.7, -34.558846)])
sketch10.addConstraint([
    Sketcher.Constraint("Vertical", 1),
    Sketcher.Constraint("Vertical", 4),
    Sketcher.Constraint("Vertical", 7),
    Sketcher.Constraint("Vertical", 10),
    Sketcher.Constraint("Vertical", 13),
    Sketcher.Constraint("Vertical", 16),
    Sketcher.Constraint("Vertical", 19),
    Sketcher.Constraint("Vertical", 22),
    Sketcher.Constraint("Symmetric", 7, 2, 12, 2, -1),
    Sketcher.Constraint("Symmetric", 11, 2, 14, 2, -1),
    Sketcher.Constraint("Symmetric", 10, 2, 15, 2, -1),
    Sketcher.Constraint("Symmetric", 8, 2, 17, 2, -1),
    Sketcher.Constraint("Parallel", 0, 3),
    Sketcher.Constraint("Parallel", 2, 5),
    Sketcher.Constraint("Parallel", 3, 6),
    Sketcher.Constraint("Parallel", 5, 8),
    Sketcher.Constraint("Parallel", 6, 9),
    Sketcher.Constraint("Parallel", 8, 11),
    Sketcher.Constraint("Parallel", 9, 12),
    Sketcher.Constraint("Parallel", 11, 14),
    Sketcher.Constraint("Parallel", 14, 17),
    Sketcher.Constraint("Parallel", 15, 18),
    Sketcher.Constraint("Parallel", 17, 20),
    Sketcher.Constraint("Parallel", 18, 21),
    Sketcher.Constraint("Parallel", 20, 23),
    Sketcher.Constraint("Horizontal", 1, 2, 3, 2),
    Sketcher.Constraint("Horizontal", 0, 2, 4, 2),
    Sketcher.Constraint("Horizontal", 4, 2, 6, 2),
    Sketcher.Constraint("Horizontal", 3, 2, 7, 2),
    Sketcher.Constraint("Horizontal", 2, 2, 8, 2),
    Sketcher.Constraint("Horizontal", 7, 2, 9, 2),
    Sketcher.Constraint("Horizontal", 6, 2, 10, 2),
    Sketcher.Constraint("Horizontal", 16, 2, 18, 2),
    Sketcher.Constraint("Horizontal", 15, 2, 19, 2),
    Sketcher.Constraint("Horizontal", 14, 2, 20, 2),
    Sketcher.Constraint("Horizontal", 19, 2, 21, 2),
    Sketcher.Constraint("Horizontal", 18, 2, 22, 2),
    Sketcher.Constraint("Angle", 0, Q("150 deg")),
    Sketcher.Constraint("DistanceX", -1, 1, 2, 2, 28.0),
    Sketcher.Constraint("DistanceX", -1, 1, 20, 2, 35.0),
    Sketcher.Constraint("DistanceY", 12, 2, 6, 2, 66.0),
    Sketcher.Constraint("DistanceX", -1, 1, 0, 2, 25.3),
    Sketcher.Constraint("DistanceX", -1, 1, 6, 2, 0.8),
    Sketcher.Constraint("DistanceY", 1, 1, 1, 2, 3.117691),
])
pocket5 = body.newObject("PartDesign::Pocket", "Pocket004")
pocket5.Profile = sketch10
pocket5.Length = 3
pocket5.Reversed = True

sketch11 = body.newObject("Sketcher::SketchObject", "Sketch010")
sketch11.AttachmentSupport = (doc.getObject("XZ_Plane"), [""])
sketch11.MapMode = "FlatFace"
sketch11.AttachmentOffset = App.Placement(Vector(0, 0, -33), App.Rotation())
sketch11.addGeometry([
    Part.Circle(Vector(44, 39, 0), Vector(0, 0, 1), 1.5),
    Part.Circle(Vector(-39, 44, 0), Vector(0, 0, 1), 1.5),
    Part.Circle(Vector(-44, -39, 0), Vector(0, 0, 1), 1.5),
    Part.Circle(Vector(39, -44, 0), Vector(0, 0, 1), 1.5),
], False)
sketch11.addConstraint([
    Sketcher.Constraint("Equal", 0, 1),
    Sketcher.Constraint("Equal", 1, 2),
    Sketcher.Constraint("Equal", 2, 3),
    Sketcher.Constraint("Symmetric", 0, 3, 2, 3, -1, 1),
    Sketcher.Constraint("Symmetric", 1, 3, 3, 3, -1, 1),
    Sketcher.Constraint("Diameter", 0, 3.0),
    Sketcher.Constraint("DistanceX", -1, 1, 0, 3, 44.0),
    Sketcher.Constraint("DistanceY", -1, 1, 0, 3, 39.0),
    Sketcher.Constraint("DistanceX", 1, 3, -1, 1, 39.0),
    Sketcher.Constraint("DistanceY", -1, 1, 1, 3, 44.0),
])
pocket6 = body.newObject("PartDesign::Pocket", "Pocket005")
pocket6.Profile = sketch11
pocket6.Length = 10
pocket6.Reversed = True

doc.recompute()
